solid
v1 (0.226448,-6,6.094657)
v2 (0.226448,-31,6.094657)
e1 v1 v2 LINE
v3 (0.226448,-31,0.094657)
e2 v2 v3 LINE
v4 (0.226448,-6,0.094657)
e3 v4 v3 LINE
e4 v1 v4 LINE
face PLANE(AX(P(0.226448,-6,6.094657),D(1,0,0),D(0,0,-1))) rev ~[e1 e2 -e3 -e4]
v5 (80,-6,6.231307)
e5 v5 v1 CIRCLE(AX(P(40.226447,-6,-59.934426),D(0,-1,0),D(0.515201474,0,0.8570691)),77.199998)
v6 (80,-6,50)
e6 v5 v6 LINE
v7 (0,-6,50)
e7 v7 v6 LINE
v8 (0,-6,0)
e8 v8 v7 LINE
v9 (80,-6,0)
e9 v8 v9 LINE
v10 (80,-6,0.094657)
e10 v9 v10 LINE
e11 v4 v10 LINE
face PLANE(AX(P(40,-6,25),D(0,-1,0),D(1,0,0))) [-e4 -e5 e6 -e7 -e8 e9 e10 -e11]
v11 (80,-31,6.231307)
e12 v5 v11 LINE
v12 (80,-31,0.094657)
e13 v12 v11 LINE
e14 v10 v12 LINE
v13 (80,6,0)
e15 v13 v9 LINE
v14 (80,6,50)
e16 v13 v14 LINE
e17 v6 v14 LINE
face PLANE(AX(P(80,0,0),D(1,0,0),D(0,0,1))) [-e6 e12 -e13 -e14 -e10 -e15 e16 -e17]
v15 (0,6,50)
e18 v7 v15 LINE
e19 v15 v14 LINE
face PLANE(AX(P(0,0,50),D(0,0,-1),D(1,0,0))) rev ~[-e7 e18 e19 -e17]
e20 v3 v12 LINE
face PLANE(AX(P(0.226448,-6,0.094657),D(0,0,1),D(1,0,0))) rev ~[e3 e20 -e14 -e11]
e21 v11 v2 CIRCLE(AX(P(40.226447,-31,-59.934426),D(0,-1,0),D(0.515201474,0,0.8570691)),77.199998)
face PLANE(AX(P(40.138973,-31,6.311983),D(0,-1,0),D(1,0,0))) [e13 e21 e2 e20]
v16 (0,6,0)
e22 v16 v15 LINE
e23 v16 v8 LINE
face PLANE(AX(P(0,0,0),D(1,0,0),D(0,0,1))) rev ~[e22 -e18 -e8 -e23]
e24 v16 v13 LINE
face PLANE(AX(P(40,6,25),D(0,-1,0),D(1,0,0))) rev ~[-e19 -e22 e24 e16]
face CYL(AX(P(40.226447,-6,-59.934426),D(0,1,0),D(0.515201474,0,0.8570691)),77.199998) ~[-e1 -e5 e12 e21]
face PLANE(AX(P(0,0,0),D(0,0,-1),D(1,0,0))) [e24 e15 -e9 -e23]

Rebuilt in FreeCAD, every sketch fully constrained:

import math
import FreeCAD as App
import Part
import Sketcher
from FreeCAD import Vector

doc = App.newDocument("Part")
body = doc.addObject("PartDesign::Body", "Body")

# Sketch on XZ plane
sketch1 = doc.addObject("Sketcher::SketchObject", "Sketch")
body.addObject(sketch1)
sketch1.AttachmentSupport = (doc.XZ_Plane, [""])
sketch1.MapMode = "FlatFace"
sketch1.addGeometry(Part.LineSegment(Vector(0, 50, 0), Vector(0, 0, 0)), False)
sketch1.addGeometry(Part.LineSegment(Vector(0, 0, 0), Vector(80, 0, 0)), False)
sketch1.addGeometry(Part.LineSegment(Vector(80, 0, 0), Vector(80, 50, 0)), False)
sketch1.addGeometry(Part.LineSegment(Vector(80, 50, 0), Vector(0, 50, 0)), False)
sketch1.addConstraint(Sketcher.Constraint("Coincident", 0, 2, 1, 1))
sketch1.addConstraint(Sketcher.Constraint("Coincident", 1, 2, 2, 1))
sketch1.addConstraint(Sketcher.Constraint("Coincident", 2, 2, 3, 1))
sketch1.addConstraint(Sketcher.Constraint("Coincident", 3, 2, 0, 1))
sketch1.addConstraint(Sketcher.Constraint("Vertical", 0))
sketch1.addConstraint(Sketcher.Constraint("Horizontal", 1))
sketch1.addConstraint(Sketcher.Constraint("Vertical", 2))
sketch1.addConstraint(Sketcher.Constraint("Horizontal", 3))
sketch1.addConstraint(Sketcher.Constraint("Coincident", 0, 2, -1, 1))
sketch1.addConstraint(Sketcher.Constraint("DistanceX", 1, 1, 1, 2, 80.0))
sketch1.addConstraint(Sketcher.Constraint("DistanceY", 0, 2, 0, 1, 50.0))
pad1 = doc.addObject("PartDesign::Pad", "Pad")
body.addObject(pad1)
pad1.Profile = sketch1
pad1.Length = 12
pad1.Midplane = True

# Sketch on XZ plane
sketch2 = doc.addObject("Sketcher::SketchObject", "Sketch001")
body.addObject(sketch2)
sketch2.AttachmentSupport = (doc.XZ_Plane, [""])
sketch2.MapMode = "FlatFace"
sketch2.AttachmentOffset = App.Placement(Vector(0, 0, 6), App.Rotation())
sketch2.addGeometry(Part.ArcOfCircle(Part.Circle(Vector(40, -60, 0), Vector(0, 0, 1), 77), math.radians(59), math.radians(121)), False)
sketch2.addGeometry(Part.LineSegment(Vector(0, 6, 0), Vector(0, 0, 0)), False)
sketch2.addGeometry(Part.LineSegment(Vector(0, 0, 0), Vector(80, 0, 0)), False)
sketch2.addGeometry(Part.LineSegment(Vector(80, 0, 0), Vector(80, 6, 0)), False)
sketch2.addConstraint(Sketcher.Constraint("Coincident", 0, 2, 1, 1))
sketch2.addConstraint(Sketcher.Constraint("Coincident", 1, 2, 2, 1))
sketch2.addConstraint(Sketcher.Constraint("Coincident", 2, 2, 3, 1))
sketch2.addConstraint(Sketcher.Constraint("Coincident", 3, 2, 0, 1))
sketch2.addConstraint(Sketcher.Constraint("Vertical", 1))
sketch2.addConstraint(Sketcher.Constraint("Horizontal", 2))
sketch2.addConstraint(Sketcher.Constraint("Vertical", 3))
sketch2.addConstraint(Sketcher.Constraint("Radius", 0, 77.199998))
sketch2.addConstraint(Sketcher.Constraint("DistanceY", 1, 2, 1, 1, 6.0))
sketch2.addConstraint(Sketcher.Constraint("DistanceX", -1, 1, 2, 2, 80.0))
sketch2.addConstraint(Sketcher.Constraint("DistanceX", 0, 2, 0, 3, 39.999999))
sketch2.addConstraint(Sketcher.Constraint("DistanceX", 2, 1, 2, 2, 79.773552))
sketch2.addConstraint(Sketcher.Constraint("DistanceY", 0, 3, -1, 1, 59.934426))
pad2 = doc.addObject("PartDesign::Pad", "Pad001")
body.addObject(pad2)
pad2.Profile = sketch2
pad2.Length = 25

doc.recompute()
